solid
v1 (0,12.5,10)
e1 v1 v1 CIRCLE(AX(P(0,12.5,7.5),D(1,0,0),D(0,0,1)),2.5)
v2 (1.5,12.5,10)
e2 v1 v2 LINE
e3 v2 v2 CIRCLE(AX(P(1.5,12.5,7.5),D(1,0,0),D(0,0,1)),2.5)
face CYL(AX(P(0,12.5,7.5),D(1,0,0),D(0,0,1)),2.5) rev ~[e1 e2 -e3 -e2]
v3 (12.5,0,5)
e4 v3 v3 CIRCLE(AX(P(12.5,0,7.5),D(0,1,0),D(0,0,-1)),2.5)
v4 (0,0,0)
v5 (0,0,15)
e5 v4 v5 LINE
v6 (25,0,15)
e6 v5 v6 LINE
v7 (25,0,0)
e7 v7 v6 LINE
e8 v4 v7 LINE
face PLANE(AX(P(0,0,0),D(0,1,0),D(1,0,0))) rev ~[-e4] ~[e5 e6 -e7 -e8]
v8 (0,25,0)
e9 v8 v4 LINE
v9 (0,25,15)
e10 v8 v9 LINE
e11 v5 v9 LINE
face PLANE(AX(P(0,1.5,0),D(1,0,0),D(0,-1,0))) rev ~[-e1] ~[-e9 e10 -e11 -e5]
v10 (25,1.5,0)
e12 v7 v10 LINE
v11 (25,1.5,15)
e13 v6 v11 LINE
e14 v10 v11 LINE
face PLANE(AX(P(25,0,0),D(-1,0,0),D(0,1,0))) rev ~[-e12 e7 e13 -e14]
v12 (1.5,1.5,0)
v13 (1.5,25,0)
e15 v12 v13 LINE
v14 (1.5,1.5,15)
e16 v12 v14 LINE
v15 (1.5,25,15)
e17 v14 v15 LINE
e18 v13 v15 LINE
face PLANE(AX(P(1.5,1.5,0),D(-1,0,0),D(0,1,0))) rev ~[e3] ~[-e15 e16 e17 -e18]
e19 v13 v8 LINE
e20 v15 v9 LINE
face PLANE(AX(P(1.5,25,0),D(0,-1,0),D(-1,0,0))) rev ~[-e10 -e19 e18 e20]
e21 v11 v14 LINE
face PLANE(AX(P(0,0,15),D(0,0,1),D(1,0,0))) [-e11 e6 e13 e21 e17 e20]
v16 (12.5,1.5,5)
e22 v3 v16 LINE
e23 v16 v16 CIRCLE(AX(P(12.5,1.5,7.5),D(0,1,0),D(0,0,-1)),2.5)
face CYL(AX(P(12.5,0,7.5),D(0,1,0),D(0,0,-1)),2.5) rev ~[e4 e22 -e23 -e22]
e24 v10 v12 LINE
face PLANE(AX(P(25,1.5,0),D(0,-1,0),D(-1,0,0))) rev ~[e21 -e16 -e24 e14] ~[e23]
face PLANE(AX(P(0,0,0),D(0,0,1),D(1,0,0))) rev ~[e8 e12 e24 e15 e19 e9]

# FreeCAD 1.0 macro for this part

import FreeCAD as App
import Part
import Sketcher

doc = App.newDocument("Part")
params = doc.addObject("Spreadsheet::Sheet", "Params")
for row, (alias, value) in enumerate([
    ("sketch1_width", "25 mm"),
    ("sketch1_width2", "1.5 mm"),
    ("pad1_length", "15 mm"),
    ("sketch2_diameter", "5 mm"),
    ("hole_diameter", "5 mm"),
    ("hole_depth", "8 mm"),
    ("sketch3_diameter", "5 mm"),
    ("hole2_diameter", "5 mm"),
    ("hole2_depth", "8 mm"),
], start=1):
    params.set(f"A{row}", alias)
    params.set(f"B{row}", "=" + value)
    params.setAlias(f"B{row}", alias)

body = doc.addObject("PartDesign::Body", "Body")

# Sketch on XY plane
sketch1 = body.newObject("Sketcher::SketchObject", "Sketch")
sketch1.AttachmentSupport = (doc.getObject("XY_Plane"), [""])
sketch1.MapMode = "FlatFace"
sketch1.addGeometry(Part.LineSegment(App.Vector(0, 0, 0), App.Vector(25, 0, 0)), False)
sketch1.addGeometry(Part.LineSegment(App.Vector(25, 0, 0), App.Vector(25, 1.5, 0)), False)
sketch1.addGeometry(Part.LineSegment(App.Vector(25, 1.5, 0), App.Vector(1.5, 1.5, 0)), False)
sketch1.addGeometry(Part.LineSegment(App.Vector(1.5, 1.5, 0), App.Vector(1.5, 25, 0)), False)
sketch1.addGeometry(Part.LineSegment(App.Vector(1.5, 25, 0), App.Vector(0, 25, 0)), False)
sketch1.addGeometry(Part.LineSegment(App.Vector(0, 25, 0), App.Vector(0, 0, 0)), False)
sketch1.addConstraint(Sketcher.Constraint("Coincident", 0, 2, 1, 1))
sketch1.addConstraint(Sketcher.Constraint("Coincident", 1, 2, 2, 1))
sketch1.addConstraint(Sketcher.Constraint("Coincident", 2, 2, 3, 1))
sketch1.addConstraint(Sketcher.Constraint("Coincident", 3, 2, 4, 1))
sketch1.addConstraint(Sketcher.Constraint("Coincident", 4, 2, 5, 1))
sketch1.addConstraint(Sketcher.Constraint("Coincident", 5, 2, 0, 1))
sketch1.addConstraint(Sketcher.Constraint("Horizontal", 0))
sketch1.addConstraint(Sketcher.Constraint("Vertical", 1))
sketch1.addConstraint(Sketcher.Constraint("Horizontal", 2))
sketch1.addConstraint(Sketcher.Constraint("Vertical", 3))
sketch1.addConstraint(Sketcher.Constraint("Horizontal", 4))
sketch1.addConstraint(Sketcher.Constraint("Vertical", 5))
sketch1.addConstraint(Sketcher.Constraint("Coincident", 5, 2, -1, 1))
sketch1.addConstraint(Sketcher.Constraint("Equal", 4, 1))
sketch1.addConstraint(Sketcher.Constraint("Equal", 2, 3))
sketch1.addConstraint(Sketcher.Constraint("DistanceX", 0, 1, 0, 2, 25.0))
sketch1.addConstraint(Sketcher.Constraint("DistanceX", 4, 2, 4, 1, 1.5))
sketch1.setExpression("Constraints[15]", "Params.sketch1_width")
sketch1.setExpression("Constraints[16]", "Params.sketch1_width2")
pad1 = body.newObject("PartDesign::Pad", "Pad")
pad1.Profile = sketch1
pad1.setExpression("Length", "Params.pad1_length")

# Sketch on XZ plane
sketch2 = body.newObject("Sketcher::SketchObject", "Sketch001")
sketch2.AttachmentSupport = (doc.getObject("XZ_Plane"), [""])
sketch2.MapMode = "FlatFace"
sketch2.addGeometry(Part.Circle(App.Vector(12.5, 7.5, 0), App.Vector(0, 0, 1), 2.5), False)
sketch2.addConstraint(Sketcher.Constraint("Diameter", 0, 5.0))
sketch2.addConstraint(Sketcher.Constraint("DistanceX", -1, 1, 0, 3, 12.5))
sketch2.addConstraint(Sketcher.Constraint("DistanceY", -1, 1, 0, 3, 7.5))
sketch2.setExpression("Constraints[0]", "Params.sketch2_diameter")
doc.recompute()
hole = body.newObject("PartDesign::Hole", "Hole")
hole.Profile = sketch2
hole.ThreadType = "None"
hole.setExpression("Diameter", "Params.hole_diameter")
hole.DepthType = "Dimension"
hole.setExpression("Depth", "Params.hole_depth")
hole.DrillPoint = "Angled"
hole.DrillPointAngle = 118

# Sketch on YZ plane
sketch3 = body.newObject("Sketcher::SketchObject", "Sketch002")
sketch3.AttachmentSupport = (doc.getObject("YZ_Plane"), [""])
sketch3.MapMode = "FlatFace"
sketch3.addGeometry(Part.Circle(App.Vector(12.5, 7.5, 0), App.Vector(0, 0, 1), 2.5), False)
sketch3.addConstraint(Sketcher.Constraint("Diameter", 0, 5.0))
sketch3.addConstraint(Sketcher.Constraint("DistanceX", -1, 1, 0, 3, 12.5))
sketch3.addConstraint(Sketcher.Constraint("DistanceY", -1, 1, 0, 3, 7.5))
sketch3.setExpression("Constraints[0]", "Params.sketch3_diameter")
doc.recompute()
hole2 = body.newObject("PartDesign::Hole", "Hole001")
hole2.Profile = sketch3
hole2.ThreadType = "None"
hole2.setExpression("Diameter", "Params.hole2_diameter")
hole2.DepthType = "Dimension"
hole2.setExpression("Depth", "Params.hole2_depth")
hole2.DrillPoint = "Angled"
hole2.DrillPointAngle = 118
hole2.Reversed = True

doc.recompute()
